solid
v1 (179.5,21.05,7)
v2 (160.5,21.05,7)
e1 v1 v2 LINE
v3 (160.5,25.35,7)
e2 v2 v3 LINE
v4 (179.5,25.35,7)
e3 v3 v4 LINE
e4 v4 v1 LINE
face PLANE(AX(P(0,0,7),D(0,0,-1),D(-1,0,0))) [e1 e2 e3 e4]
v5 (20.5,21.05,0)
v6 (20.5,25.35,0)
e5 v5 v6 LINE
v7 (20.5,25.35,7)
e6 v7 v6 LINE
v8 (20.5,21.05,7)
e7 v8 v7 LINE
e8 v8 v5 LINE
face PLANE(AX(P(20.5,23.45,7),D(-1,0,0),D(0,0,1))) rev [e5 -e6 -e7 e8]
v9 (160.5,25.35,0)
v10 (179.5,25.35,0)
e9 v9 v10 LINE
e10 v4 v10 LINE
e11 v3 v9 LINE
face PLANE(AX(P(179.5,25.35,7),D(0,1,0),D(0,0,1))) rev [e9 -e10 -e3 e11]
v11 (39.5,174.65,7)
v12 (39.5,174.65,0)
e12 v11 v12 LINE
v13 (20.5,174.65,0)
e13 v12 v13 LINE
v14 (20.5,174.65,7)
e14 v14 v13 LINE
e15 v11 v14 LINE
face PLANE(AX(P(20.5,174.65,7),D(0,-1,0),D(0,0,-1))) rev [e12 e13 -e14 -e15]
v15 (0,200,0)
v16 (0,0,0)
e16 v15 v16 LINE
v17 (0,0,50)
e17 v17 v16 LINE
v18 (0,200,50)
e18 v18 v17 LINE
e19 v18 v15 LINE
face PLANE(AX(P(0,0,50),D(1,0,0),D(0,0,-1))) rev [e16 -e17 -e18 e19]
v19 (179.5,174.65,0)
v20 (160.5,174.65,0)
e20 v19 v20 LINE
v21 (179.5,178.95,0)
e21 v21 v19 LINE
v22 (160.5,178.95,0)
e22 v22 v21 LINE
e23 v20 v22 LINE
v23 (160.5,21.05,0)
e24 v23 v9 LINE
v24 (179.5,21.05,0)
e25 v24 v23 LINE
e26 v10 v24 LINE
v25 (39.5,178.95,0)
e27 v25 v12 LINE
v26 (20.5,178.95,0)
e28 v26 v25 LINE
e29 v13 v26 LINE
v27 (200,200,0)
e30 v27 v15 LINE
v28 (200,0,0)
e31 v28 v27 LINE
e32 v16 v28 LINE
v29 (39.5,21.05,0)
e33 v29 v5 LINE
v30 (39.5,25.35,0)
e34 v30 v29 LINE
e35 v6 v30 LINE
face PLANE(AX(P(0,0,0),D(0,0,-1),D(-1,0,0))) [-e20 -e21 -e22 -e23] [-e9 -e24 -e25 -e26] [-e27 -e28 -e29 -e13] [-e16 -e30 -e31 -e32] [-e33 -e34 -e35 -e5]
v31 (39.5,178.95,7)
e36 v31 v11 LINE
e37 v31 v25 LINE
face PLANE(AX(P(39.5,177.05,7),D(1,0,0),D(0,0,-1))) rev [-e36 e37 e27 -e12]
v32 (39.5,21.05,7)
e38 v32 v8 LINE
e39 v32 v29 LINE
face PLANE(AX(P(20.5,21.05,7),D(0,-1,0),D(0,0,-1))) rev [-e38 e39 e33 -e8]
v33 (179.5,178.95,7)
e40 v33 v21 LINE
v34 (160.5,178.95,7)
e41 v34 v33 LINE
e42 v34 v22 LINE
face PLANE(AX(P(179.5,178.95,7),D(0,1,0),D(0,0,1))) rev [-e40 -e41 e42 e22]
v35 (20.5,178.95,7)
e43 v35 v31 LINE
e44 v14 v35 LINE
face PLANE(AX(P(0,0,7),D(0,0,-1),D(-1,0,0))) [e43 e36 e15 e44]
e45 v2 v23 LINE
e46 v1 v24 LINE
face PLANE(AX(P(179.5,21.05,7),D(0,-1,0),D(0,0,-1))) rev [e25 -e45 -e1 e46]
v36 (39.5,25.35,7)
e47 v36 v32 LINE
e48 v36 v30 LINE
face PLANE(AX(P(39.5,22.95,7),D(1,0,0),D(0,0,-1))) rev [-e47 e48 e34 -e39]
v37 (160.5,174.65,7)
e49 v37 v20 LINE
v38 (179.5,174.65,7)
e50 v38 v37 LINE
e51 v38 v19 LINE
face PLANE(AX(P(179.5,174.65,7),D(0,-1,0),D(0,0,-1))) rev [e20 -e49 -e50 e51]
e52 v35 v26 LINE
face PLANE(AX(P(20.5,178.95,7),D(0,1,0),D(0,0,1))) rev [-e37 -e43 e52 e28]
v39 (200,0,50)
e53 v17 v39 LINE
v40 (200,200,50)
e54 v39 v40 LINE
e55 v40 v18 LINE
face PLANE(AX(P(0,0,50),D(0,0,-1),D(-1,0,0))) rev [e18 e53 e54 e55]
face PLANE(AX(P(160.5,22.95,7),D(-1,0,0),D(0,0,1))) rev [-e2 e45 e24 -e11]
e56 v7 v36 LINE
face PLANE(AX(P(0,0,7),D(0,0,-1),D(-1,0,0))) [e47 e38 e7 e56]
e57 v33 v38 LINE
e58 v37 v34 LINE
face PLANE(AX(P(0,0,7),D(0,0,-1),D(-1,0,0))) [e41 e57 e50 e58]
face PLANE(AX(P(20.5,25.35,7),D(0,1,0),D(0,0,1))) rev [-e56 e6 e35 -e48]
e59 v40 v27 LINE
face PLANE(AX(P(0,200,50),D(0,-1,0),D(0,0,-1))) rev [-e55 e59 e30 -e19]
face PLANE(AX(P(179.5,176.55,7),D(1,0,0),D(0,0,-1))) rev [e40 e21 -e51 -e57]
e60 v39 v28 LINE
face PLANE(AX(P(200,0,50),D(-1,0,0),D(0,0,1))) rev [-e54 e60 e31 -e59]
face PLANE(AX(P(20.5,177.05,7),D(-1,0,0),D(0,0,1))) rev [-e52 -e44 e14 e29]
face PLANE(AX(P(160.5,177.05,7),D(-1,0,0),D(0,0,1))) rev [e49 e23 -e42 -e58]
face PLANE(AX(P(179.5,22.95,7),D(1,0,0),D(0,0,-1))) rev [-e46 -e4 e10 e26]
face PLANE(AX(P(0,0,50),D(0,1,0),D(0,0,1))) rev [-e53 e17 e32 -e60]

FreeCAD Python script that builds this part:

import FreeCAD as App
import Part
import Sketcher
from FreeCAD import Vector

doc = App.newDocument("Part")
body = doc.addObject("PartDesign::Body", "Body")

# Sketch on XY plane
sketch1 = body.newObject("Sketcher::SketchObject", "Sketch")
sketch1.AttachmentSupport = (doc.getObject("XY_Plane"), [""])
sketch1.MapMode = "FlatFace"
sketch1.addGeometry([
    Part.LineSegment(Vector(0, 200, 0), Vector(0, 0, 0)),
    Part.LineSegment(Vector(0, 0, 0), Vector(200, 0, 0)),
    Part.LineSegment(Vector(200, 0, 0), Vector(200, 200, 0)),
    Part.LineSegment(Vector(200, 200, 0), Vector(0, 200, 0)),
], False)
sketch1.addConstraint([
    Sketcher.Constraint("Coincident", 0, 2, 1, 1),
    Sketcher.Constraint("Coincident", 1, 2, 2, 1),
    Sketcher.Constraint("Coincident", 2, 2, 3, 1),
    Sketcher.Constraint("Coincident", 3, 2, 0, 1),
    Sketcher.Constraint("Vertical", 0),
    Sketcher.Constraint("Horizontal", 1),
    Sketcher.Constraint("Vertical", 2),
    Sketcher.Constraint("Horizontal", 3),
    Sketcher.Constraint("Coincident", 0, 2, -1, 1),
    Sketcher.Constraint("Equal", 3, 0),
    Sketcher.Constraint("DistanceX", 1, 1, 1, 2, 200.0),
])
pad1 = body.newObject("PartDesign::Pad", "Pad")
pad1.Profile = sketch1
pad1.Length = 50

# Sketch on XY plane
sketch2 = body.newObject("Sketcher::SketchObject", "Sketch001")
sketch2.AttachmentSupport = (doc.getObject("XY_Plane"), [""])
sketch2.MapMode = "FlatFace"
sketch2.addGeometry([
    Part.LineSegment(Vector(160.5, 178.95, 0), Vector(179.5, 178.95, 0)),  # 0
    Part.LineSegment(Vector(179.5, 178.95, 0), Vector(179.5, 174.65, 0)),  # 1
    Part.LineSegment(Vector(179.5, 174.65, 0), Vector(160.5, 174.65, 0)),  # 2
    Part.LineSegment(Vector(160.5, 174.65, 0), Vector(160.5, 178.95, 0)),  # 3
    Part.LineSegment(Vector(39.5, 178.95, 0), Vector(39.5, 174.65, 0)),  # 4
    Part.LineSegment(Vector(39.5, 174.65, 0), Vector(20.5, 174.65, 0)),  # 5
    Part.LineSegment(Vector(20.5, 174.65, 0), Vector(20.5, 178.95, 0)),  # 6
    Part.LineSegment(Vector(20.5, 178.95, 0), Vector(39.5, 178.95, 0)),  # 7
    Part.LineSegment(Vector(39.5, 21.05, 0), Vector(20.5, 21.05, 0)),  # 8
    Part.LineSegment(Vector(20.5, 21.05, 0), Vector(20.5, 25.35, 0)),  # 9
    Part.LineSegment(Vector(20.5, 25.35, 0), Vector(39.5, 25.35, 0)),  # 10
    Part.LineSegment(Vector(39.5, 25.35, 0), Vector(39.5, 21.05, 0)),  # 11
    Part.LineSegment(Vector(160.5, 21.05, 0), Vector(160.5, 25.35, 0)),  # 12
    Part.LineSegment(Vector(160.5, 25.35, 0), Vector(179.5, 25.35, 0)),  # 13
    Part.LineSegment(Vector(179.5, 25.35, 0), Vector(179.5, 21.05, 0)),  # 14
    Part.LineSegment(Vector(179.5, 21.05, 0), Vector(160.5, 21.05, 0)),  # 15
], False)
sketch2.addConstraint([
    Sketcher.Constraint("Coincident", 0, 2, 1, 1),
    Sketcher.Constraint("Coincident", 1, 2, 2, 1),
    Sketcher.Constraint("Coincident", 2, 2, 3, 1),
    Sketcher.Constraint("Coincident", 3, 2, 0, 1),
    Sketcher.Constraint("Coincident", 4, 2, 5, 1),
    Sketcher.Constraint("Coincident", 5, 2, 6, 1),
    Sketcher.Constraint("Coincident", 6, 2, 7, 1),
    Sketcher.Constraint("Coincident", 7, 2, 4, 1),
    Sketcher.Constraint("Coincident", 8, 2, 9, 1),
    Sketcher.Constraint("Coincident", 9, 2, 10, 1),
    Sketcher.Constraint("Coincident", 10, 2, 11, 1),
    Sketcher.Constraint("Coincident", 11, 2, 8, 1),
    Sketcher.Constraint("Coincident", 12, 2, 13, 1),
    Sketcher.Constraint("Coincident", 13, 2, 14, 1),
    Sketcher.Constraint("Coincident", 14, 2, 15, 1),
    Sketcher.Constraint("Coincident", 15, 2, 12, 1),
    Sketcher.Constraint("Horizontal", 0),
    Sketcher.Constraint("Vertical", 1),
    Sketcher.Constraint("Horizontal", 2),
    Sketcher.Constraint("Vertical", 3),
    Sketcher.Constraint("Vertical", 4),
    Sketcher.Constraint("Horizontal", 5),
    Sketcher.Constraint("Vertical", 6),
    Sketcher.Constraint("Horizontal", 7),
    Sketcher.Constraint("Horizontal", 8),
    Sketcher.Constraint("Vertical", 9),
    Sketcher.Constraint("Horizontal", 10),
    Sketcher.Constraint("Vertical", 11),
    Sketcher.Constraint("Vertical", 12),
    Sketcher.Constraint("Horizontal", 13),
    Sketcher.Constraint("Vertical", 14),
    Sketcher.Constraint("Horizontal", 15),
    Sketcher.Constraint("Horizontal", 2, 2, 4, 2),
    Sketcher.Constraint("Horizontal", 3, 2, 6, 2),
    Sketcher.Constraint("Horizontal", 10, 2, 12, 2),
    Sketcher.Constraint("Horizontal", 11, 2, 14, 2),
    Sketcher.Constraint("Vertical", 6, 2, 8, 2),
    Sketcher.Constraint("Vertical", 7, 2, 10, 2),
    Sketcher.Constraint("Vertical", 3, 2, 12, 2),
    Sketcher.Constraint("Vertical", 1, 2, 13, 2),
    Sketcher.Constraint("Equal", 2, 5),
    Sketcher.Constraint("Equal", 6, 9),
    Sketcher.Constraint("DistanceX", 0, 1, 0, 2, 19.0),
    Sketcher.Constraint("DistanceY", 1, 2, 1, 1, 4.3),
    Sketcher.Constraint("DistanceX", 4, 2, 2, 2, 121.0),
    Sketcher.Constraint("DistanceX", -1, 1, 0, 2, 179.5),
    Sketcher.Constraint("DistanceY", 8, 2, 5, 2, 153.6),
    Sketcher.Constraint("DistanceY", -1, 1, 0, 2, 178.95),
])
pocket1 = body.newObject("PartDesign::Pocket", "Pocket")
pocket1.Profile = sketch2
pocket1.Length = 7
pocket1.Reversed = True

doc.recompute()
